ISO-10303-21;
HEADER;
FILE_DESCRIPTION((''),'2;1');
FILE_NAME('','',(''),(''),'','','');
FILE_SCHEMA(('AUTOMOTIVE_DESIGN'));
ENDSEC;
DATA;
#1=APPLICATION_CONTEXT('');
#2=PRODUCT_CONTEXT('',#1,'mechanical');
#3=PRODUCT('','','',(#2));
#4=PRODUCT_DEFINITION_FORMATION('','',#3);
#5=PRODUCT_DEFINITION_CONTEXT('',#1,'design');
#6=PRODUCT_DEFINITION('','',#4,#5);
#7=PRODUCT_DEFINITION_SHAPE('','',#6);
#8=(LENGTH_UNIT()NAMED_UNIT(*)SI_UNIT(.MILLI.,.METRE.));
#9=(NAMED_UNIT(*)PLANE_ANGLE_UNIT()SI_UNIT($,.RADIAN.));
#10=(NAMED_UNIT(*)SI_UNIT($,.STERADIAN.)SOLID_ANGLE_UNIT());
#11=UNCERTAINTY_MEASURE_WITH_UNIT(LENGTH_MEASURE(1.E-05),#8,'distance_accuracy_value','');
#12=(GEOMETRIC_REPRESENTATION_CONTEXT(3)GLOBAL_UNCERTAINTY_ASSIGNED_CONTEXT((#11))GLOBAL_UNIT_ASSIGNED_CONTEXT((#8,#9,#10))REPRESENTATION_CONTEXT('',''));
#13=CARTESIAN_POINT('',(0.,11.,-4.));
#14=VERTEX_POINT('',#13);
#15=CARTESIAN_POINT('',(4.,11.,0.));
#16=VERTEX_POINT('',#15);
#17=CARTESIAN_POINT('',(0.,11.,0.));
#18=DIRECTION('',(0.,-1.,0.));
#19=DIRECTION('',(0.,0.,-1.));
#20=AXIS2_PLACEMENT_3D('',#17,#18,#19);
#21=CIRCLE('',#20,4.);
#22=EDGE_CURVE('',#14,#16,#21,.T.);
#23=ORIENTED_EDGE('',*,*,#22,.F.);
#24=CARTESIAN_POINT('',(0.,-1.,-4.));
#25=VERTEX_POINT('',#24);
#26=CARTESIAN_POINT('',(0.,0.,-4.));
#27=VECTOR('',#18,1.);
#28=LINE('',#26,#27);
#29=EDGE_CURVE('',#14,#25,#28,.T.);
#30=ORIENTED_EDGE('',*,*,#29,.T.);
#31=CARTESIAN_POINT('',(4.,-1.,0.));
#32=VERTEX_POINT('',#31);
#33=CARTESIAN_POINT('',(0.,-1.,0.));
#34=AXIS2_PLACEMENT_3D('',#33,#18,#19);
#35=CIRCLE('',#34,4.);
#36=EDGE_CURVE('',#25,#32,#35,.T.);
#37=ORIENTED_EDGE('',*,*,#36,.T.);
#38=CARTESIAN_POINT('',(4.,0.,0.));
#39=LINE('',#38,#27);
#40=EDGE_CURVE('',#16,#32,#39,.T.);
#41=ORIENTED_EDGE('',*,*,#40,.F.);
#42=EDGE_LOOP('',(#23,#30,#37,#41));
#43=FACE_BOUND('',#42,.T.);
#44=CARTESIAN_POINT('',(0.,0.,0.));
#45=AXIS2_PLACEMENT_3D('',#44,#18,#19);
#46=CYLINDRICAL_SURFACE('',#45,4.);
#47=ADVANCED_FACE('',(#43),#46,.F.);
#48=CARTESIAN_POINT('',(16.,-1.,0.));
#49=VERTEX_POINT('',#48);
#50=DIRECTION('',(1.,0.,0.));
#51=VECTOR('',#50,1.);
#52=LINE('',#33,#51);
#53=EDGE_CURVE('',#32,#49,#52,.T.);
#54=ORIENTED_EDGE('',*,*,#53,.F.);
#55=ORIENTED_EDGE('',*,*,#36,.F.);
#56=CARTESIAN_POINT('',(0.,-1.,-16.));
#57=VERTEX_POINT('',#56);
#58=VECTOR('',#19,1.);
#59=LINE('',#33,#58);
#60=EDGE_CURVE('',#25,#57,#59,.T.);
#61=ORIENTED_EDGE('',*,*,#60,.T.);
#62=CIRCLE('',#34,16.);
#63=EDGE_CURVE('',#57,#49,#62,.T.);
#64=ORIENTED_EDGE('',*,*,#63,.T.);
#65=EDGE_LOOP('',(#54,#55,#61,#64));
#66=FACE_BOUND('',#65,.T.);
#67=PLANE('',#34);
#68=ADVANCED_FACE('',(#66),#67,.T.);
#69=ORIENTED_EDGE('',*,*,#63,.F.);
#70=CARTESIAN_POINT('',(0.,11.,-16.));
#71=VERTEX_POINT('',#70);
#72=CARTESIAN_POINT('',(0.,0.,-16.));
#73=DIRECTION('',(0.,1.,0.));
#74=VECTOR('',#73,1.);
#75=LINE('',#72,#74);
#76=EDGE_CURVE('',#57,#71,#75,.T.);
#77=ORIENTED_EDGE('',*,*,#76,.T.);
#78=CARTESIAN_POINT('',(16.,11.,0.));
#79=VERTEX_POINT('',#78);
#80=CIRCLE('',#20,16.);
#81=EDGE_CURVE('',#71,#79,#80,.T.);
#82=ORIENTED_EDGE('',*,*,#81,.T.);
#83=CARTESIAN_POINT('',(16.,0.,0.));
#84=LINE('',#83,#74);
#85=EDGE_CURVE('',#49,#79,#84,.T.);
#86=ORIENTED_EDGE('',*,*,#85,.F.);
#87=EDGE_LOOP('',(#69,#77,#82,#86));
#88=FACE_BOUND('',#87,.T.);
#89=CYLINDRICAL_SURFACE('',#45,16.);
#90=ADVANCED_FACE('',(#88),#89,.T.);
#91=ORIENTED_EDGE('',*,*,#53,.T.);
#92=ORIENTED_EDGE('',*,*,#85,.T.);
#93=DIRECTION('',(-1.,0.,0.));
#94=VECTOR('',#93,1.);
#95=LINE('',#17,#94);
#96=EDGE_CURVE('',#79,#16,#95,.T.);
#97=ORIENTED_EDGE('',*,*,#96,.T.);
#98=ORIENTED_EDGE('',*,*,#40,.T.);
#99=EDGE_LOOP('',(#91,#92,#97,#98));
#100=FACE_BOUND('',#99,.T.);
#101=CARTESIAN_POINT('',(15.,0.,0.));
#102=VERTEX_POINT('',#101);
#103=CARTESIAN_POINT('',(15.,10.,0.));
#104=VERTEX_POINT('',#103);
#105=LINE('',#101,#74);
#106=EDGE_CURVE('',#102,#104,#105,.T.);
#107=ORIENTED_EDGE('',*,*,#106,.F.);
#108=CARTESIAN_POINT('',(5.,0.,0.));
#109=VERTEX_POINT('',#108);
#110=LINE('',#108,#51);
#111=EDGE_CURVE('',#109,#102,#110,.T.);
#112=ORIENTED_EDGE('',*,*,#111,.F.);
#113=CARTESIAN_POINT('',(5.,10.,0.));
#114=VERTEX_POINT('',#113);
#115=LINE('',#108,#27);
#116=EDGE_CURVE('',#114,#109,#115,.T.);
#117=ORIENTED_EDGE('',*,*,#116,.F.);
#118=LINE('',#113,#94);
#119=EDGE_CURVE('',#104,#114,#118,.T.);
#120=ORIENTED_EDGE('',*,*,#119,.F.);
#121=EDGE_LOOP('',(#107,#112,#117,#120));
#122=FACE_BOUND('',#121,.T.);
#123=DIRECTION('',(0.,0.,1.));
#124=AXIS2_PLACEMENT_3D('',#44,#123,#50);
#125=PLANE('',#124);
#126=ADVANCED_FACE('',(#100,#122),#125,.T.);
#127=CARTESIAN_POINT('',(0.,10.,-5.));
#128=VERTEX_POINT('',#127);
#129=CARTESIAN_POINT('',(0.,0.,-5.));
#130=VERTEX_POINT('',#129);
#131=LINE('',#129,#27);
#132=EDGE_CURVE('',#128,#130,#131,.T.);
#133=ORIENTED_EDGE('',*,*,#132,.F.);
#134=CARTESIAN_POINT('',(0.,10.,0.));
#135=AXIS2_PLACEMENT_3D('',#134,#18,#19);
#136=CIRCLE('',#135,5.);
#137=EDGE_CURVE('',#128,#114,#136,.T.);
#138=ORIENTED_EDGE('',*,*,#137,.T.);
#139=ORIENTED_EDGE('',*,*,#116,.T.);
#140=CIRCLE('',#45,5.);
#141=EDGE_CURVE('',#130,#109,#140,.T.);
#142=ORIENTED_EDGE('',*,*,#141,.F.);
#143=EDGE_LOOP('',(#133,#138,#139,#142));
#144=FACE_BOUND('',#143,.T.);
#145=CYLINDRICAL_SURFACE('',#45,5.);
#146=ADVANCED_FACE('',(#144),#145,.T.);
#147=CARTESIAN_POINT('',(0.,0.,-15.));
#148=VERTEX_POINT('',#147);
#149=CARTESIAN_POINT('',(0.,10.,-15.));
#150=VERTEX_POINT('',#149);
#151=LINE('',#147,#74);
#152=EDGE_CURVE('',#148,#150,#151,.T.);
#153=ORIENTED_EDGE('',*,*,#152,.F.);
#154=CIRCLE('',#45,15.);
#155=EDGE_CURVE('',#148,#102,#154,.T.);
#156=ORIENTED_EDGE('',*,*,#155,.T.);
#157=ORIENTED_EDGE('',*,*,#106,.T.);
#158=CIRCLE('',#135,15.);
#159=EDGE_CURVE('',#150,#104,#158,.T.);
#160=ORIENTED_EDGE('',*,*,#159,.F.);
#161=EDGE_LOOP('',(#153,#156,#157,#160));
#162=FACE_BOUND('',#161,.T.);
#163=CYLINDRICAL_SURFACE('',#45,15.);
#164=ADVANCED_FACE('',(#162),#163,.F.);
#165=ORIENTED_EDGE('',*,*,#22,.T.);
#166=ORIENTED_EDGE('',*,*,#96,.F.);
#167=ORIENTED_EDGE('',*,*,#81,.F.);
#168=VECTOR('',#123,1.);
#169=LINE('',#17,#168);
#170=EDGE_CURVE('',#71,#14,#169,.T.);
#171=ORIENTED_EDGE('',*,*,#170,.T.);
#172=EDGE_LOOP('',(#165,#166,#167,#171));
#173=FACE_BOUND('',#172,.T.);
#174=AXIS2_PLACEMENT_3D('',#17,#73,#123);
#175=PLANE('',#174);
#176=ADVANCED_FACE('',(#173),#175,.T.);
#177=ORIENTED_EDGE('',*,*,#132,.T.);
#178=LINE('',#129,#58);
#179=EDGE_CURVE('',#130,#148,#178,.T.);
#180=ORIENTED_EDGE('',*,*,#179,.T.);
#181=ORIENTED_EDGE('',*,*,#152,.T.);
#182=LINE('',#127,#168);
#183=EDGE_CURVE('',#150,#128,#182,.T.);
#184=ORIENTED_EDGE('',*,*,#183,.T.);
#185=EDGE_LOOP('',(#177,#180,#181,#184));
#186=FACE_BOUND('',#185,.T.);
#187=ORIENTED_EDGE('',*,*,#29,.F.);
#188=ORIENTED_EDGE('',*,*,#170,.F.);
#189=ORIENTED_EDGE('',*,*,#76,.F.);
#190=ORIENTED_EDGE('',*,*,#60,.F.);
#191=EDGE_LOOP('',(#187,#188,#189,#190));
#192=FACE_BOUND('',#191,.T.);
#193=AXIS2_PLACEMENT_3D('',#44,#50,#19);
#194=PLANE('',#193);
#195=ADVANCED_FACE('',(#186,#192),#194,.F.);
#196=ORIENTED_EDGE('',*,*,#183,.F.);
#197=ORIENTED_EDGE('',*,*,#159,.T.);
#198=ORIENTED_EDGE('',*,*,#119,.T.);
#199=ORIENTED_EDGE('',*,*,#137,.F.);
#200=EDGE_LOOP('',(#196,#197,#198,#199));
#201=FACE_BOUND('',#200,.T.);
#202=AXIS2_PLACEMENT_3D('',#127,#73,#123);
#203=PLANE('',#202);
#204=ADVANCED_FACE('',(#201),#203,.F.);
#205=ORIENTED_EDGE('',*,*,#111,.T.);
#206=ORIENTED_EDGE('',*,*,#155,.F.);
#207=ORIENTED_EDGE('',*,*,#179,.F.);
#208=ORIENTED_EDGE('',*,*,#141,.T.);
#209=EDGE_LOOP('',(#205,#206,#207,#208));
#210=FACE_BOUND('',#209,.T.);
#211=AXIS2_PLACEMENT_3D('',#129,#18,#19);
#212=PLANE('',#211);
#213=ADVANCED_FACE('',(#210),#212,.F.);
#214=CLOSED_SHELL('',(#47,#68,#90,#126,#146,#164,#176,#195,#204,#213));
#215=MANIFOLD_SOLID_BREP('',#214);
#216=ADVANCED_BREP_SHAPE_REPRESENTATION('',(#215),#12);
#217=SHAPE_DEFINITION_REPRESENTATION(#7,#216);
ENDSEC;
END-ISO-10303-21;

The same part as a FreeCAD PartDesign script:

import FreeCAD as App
import Part
import Sketcher

V = App.Vector


def add_polygon(sketch, points):
    """Adds a closed chain of lines whose ends are joined by coincident constraints."""
    first, n = sketch.GeometryCount, len(points)
    for a, b in zip(points, points[1:] + points[:1]):
        sketch.addGeometry(Part.LineSegment(App.Vector(*a, 0), App.Vector(*b, 0)), False)
    for i in range(n):
        sketch.addConstraint(Sketcher.Constraint("Coincident", first + i, 2, first + (i + 1) % n, 1))

doc = App.newDocument("Part")
body = doc.addObject("PartDesign::Body", "Body")

# Sketch on XY plane
sketch1 = body.newObject("Sketcher::SketchObject", "Sketch")
sketch1.AttachmentSupport = (doc.getObject("XY_Plane"), [""])
sketch1.MapMode = "FlatFace"
add_polygon(sketch1, [(4, 11), (4, -1), (16, -1), (16, 11)])  # lines 0-3
add_polygon(sketch1, [(15, 0), (5, 0), (5, 10), (15, 10)])  # lines 4-7
sketch1.addConstraint([
    Sketcher.Constraint("Vertical", 0),
    Sketcher.Constraint("Horizontal", 1),
    Sketcher.Constraint("Vertical", 2),
    Sketcher.Constraint("Horizontal", 3),
    Sketcher.Constraint("Horizontal", 4),
    Sketcher.Constraint("Vertical", 5),
    Sketcher.Constraint("Horizontal", 6),
    Sketcher.Constraint("Vertical", 7),
    Sketcher.Constraint("PointOnObject", 4, 2, -1),
    Sketcher.Constraint("Equal", 3, 0),
    Sketcher.Constraint("Equal", 6, 5),
    Sketcher.Constraint("DistanceX", 1, 1, 1, 2, 12.0),
    Sketcher.Constraint("DistanceX", 4, 2, 4, 1, 10.0),
    Sketcher.Constraint("DistanceX", -1, 1, 0, 2, 4.0),
    Sketcher.Constraint("DistanceY", 0, 2, -1, 1, 1.0),
    Sketcher.Constraint("DistanceX", -1, 1, 4, 2, 5.0),
])
revolution = body.newObject("PartDesign::Revolution", "Revolution")
revolution.Profile = sketch1
revolution.ReferenceAxis = (sketch1, ["V_Axis"])
revolution.Angle = 90

doc.recompute()
